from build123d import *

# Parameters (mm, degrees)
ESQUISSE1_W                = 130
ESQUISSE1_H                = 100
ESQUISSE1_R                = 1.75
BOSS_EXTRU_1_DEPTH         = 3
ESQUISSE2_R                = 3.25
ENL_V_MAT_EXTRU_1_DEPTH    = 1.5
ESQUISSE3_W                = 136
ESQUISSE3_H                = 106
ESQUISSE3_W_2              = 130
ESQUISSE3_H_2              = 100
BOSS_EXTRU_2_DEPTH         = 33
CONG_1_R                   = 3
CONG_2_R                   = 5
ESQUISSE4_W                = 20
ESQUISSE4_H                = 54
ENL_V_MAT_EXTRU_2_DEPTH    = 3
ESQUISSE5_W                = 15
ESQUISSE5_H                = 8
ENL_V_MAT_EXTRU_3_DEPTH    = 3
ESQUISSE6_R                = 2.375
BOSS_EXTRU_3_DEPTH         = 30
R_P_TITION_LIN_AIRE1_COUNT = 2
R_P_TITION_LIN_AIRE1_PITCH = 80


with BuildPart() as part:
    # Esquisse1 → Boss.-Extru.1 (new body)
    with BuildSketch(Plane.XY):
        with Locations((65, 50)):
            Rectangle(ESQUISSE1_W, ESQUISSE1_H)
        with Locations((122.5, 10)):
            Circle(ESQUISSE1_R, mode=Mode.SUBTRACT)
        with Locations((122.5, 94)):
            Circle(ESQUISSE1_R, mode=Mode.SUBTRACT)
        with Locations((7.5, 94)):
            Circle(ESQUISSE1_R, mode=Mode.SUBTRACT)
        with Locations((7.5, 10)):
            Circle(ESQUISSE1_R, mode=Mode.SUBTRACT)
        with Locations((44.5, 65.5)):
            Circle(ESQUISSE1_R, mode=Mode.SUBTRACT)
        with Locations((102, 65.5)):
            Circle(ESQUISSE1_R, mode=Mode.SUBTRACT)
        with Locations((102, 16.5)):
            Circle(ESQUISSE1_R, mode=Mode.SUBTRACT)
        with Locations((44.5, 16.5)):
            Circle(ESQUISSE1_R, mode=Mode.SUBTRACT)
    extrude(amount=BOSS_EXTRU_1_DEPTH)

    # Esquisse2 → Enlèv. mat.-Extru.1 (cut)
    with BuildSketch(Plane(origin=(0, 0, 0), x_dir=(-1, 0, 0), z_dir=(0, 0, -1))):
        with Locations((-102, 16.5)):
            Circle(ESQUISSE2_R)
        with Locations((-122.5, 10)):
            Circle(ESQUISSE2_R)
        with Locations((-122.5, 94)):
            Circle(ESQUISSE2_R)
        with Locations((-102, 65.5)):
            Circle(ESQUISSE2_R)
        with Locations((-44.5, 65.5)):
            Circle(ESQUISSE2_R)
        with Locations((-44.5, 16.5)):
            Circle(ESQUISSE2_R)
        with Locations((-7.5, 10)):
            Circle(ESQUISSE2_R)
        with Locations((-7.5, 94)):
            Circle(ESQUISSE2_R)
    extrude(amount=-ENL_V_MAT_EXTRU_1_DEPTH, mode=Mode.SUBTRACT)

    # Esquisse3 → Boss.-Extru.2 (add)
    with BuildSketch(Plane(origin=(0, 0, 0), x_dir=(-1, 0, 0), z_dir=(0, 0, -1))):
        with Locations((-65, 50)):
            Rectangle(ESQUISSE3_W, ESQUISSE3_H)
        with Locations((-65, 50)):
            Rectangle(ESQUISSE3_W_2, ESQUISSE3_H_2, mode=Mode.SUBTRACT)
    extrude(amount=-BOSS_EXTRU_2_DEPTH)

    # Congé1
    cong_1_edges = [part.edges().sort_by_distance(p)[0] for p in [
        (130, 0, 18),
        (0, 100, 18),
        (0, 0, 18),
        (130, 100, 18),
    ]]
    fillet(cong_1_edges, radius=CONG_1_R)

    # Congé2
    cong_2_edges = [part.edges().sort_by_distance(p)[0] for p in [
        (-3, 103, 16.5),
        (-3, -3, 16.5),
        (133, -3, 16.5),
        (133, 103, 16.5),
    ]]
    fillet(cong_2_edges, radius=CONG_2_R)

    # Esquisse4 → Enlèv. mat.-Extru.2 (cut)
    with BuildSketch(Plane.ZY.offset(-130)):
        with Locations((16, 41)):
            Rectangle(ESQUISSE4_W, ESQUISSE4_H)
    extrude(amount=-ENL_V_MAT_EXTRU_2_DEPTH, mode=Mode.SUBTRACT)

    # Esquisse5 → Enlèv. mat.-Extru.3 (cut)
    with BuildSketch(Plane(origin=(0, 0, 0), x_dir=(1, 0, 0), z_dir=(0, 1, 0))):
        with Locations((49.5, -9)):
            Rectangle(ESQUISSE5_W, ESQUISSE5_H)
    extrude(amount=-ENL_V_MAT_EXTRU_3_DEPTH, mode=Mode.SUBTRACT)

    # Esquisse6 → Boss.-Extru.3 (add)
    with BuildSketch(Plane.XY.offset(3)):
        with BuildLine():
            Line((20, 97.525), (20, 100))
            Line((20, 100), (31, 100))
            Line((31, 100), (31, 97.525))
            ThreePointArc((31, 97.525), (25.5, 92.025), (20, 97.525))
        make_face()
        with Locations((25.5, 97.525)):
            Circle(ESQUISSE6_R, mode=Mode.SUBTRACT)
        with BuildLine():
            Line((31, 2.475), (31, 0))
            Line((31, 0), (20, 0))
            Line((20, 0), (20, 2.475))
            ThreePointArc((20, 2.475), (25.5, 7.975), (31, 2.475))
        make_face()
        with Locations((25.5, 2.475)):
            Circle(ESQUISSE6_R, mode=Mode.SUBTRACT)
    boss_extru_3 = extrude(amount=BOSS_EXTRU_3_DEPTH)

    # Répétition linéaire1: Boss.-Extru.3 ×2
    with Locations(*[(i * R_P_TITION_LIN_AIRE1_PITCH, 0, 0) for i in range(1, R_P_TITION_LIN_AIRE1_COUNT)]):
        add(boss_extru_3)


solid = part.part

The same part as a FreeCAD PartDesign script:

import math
import FreeCAD as App
import Part
import Sketcher
from FreeCAD import Vector
Q = App.Units.Quantity


def edges_at(feature, points):
    """Names of the edges that pass closest to the given points."""
    edges = feature.Shape.Edges
    near = lambda p: min(range(len(edges)), key=lambda i: edges[i].distToShape(Part.Vertex(*p))[0])
    return sorted({f"Edge{near(p) + 1}" for p in points})

doc = App.newDocument("Part")
body = doc.addObject("PartDesign::Body", "Body")

# Sketch on XY plane
sketch1 = body.newObject("Sketcher::SketchObject", "Sketch")
sketch1.AttachmentSupport = (doc.getObject("XY_Plane"), [""])
sketch1.MapMode = "FlatFace"
sketch1.addGeometry(Part.LineSegment(Vector(0, 100, 0), Vector(0, 0, 0)), False)
sketch1.addGeometry(Part.LineSegment(Vector(0, 0, 0), Vector(130, 0, 0)), False)
sketch1.addGeometry(Part.LineSegment(Vector(130, 0, 0), Vector(130, 100, 0)), False)
sketch1.addGeometry(Part.LineSegment(Vector(130, 100, 0), Vector(0, 100, 0)), False)
sketch1.addGeometry(Part.Circle(Vector(7.5, 10, 0), Vector(0, 0, 1), 1.8), False)
sketch1.addGeometry(Part.Circle(Vector(44.5, 16.5, 0), Vector(0, 0, 1), 1.8), False)
sketch1.addGeometry(Part.Circle(Vector(102, 16.5, 0), Vector(0, 0, 1), 1.8), False)
sketch1.addGeometry(Part.Circle(Vector(122.5, 10, 0), Vector(0, 0, 1), 1.8), False)
sketch1.addGeometry(Part.Circle(Vector(44.5, 65.5, 0), Vector(0, 0, 1), 1.8), False)
sketch1.addGeometry(Part.Circle(Vector(7.5, 94, 0), Vector(0, 0, 1), 1.8), False)
sketch1.addGeometry(Part.Circle(Vector(102, 65.5, 0), Vector(0, 0, 1), 1.8), False)
sketch1.addGeometry(Part.Circle(Vector(122.5, 94, 0), Vector(0, 0, 1), 1.8), False)
sketch1.addConstraint(Sketcher.Constraint("Coincident", 0, 2, 1, 1))
sketch1.addConstraint(Sketcher.Constraint("Coincident", 1, 2, 2, 1))
sketch1.addConstraint(Sketcher.Constraint("Coincident", 2, 2, 3, 1))
sketch1.addConstraint(Sketcher.Constraint("Coincident", 3, 2, 0, 1))
sketch1.addConstraint(Sketcher.Constraint("Vertical", 0))
sketch1.addConstraint(Sketcher.Constraint("Horizontal", 1))
sketch1.addConstraint(Sketcher.Constraint("Vertical", 2))
sketch1.addConstraint(Sketcher.Constraint("Horizontal", 3))
sketch1.addConstraint(Sketcher.Constraint("Coincident", 0, 2, -1, 1))
sketch1.addConstraint(Sketcher.Constraint("Equal", 4, 5))
sketch1.addConstraint(Sketcher.Constraint("Equal", 5, 6))
sketch1.addConstraint(Sketcher.Constraint("Equal", 6, 7))
sketch1.addConstraint(Sketcher.Constraint("Equal", 7, 8))
sketch1.addConstraint(Sketcher.Constraint("Equal", 8, 9))
sketch1.addConstraint(Sketcher.Constraint("Equal", 9, 10))
sketch1.addConstraint(Sketcher.Constraint("Equal", 10, 11))
sketch1.addConstraint(Sketcher.Constraint("Horizontal", 5, 3, 6, 3))
sketch1.addConstraint(Sketcher.Constraint("Horizontal", 4, 3, 7, 3))
sketch1.addConstraint(Sketcher.Constraint("Horizontal", 8, 3, 10, 3))
sketch1.addConstraint(Sketcher.Constraint("Horizontal", 9, 3, 11, 3))
sketch1.addConstraint(Sketcher.Constraint("Vertical", 5, 3, 8, 3))
sketch1.addConstraint(Sketcher.Constraint("Vertical", 4, 3, 9, 3))
sketch1.addConstraint(Sketcher.Constraint("Vertical", 6, 3, 10, 3))
sketch1.addConstraint(Sketcher.Constraint("Vertical", 7, 3, 11, 3))
sketch1.addConstraint(Sketcher.Constraint("Diameter", 4, Q("3.5 mm")))
sketch1.addConstraint(Sketcher.Constraint("DistanceX", 1, 1, 1, 2, Q("130 mm")))
sketch1.addConstraint(Sketcher.Constraint("DistanceY", 0, 2, 0, 1, Q("100 mm")))
sketch1.addConstraint(Sketcher.Constraint("DistanceY", -1, 1, 4, 3, Q("10 mm")))
sketch1.addConstraint(Sketcher.Constraint("DistanceX", -1, 1, 6, 3, Q("102 mm")))
sketch1.addConstraint(Sketcher.Constraint("DistanceY", -1, 1, 9, 3, Q("94 mm")))
sketch1.addConstraint(Sketcher.Constraint("DistanceX", 4, 3, 5, 3, Q("37 mm")))
sketch1.addConstraint(Sketcher.Constraint("DistanceX", 5, 3, 7, 3, Q("78 mm")))
sketch1.addConstraint(Sketcher.Constraint("DistanceY", 5, 3, 8, 3, Q("49 mm")))
sketch1.addConstraint(Sketcher.Constraint("DistanceX", -1, 1, 4, 3, Q("7.5 mm")))
sketch1.addConstraint(Sketcher.Constraint("DistanceY", -1, 1, 5, 3, Q("16.5 mm")))
pad1 = body.newObject("PartDesign::Pad", "Pad")
pad1.Profile = sketch1
pad1.Length = 3

# Sketch on XY plane
sketch2 = body.newObject("Sketcher::SketchObject", "Sketch001")
sketch2.AttachmentSupport = (doc.getObject("XY_Plane"), [""])
sketch2.MapMode = "FlatFace"
sketch2.addGeometry(Part.Circle(Vector(102, 16.5, 0), Vector(0, 0, 1), 3.2), False)
sketch2.addGeometry(Part.Circle(Vector(122.5, 10, 0), Vector(0, 0, 1), 3.2), False)
sketch2.addGeometry(Part.Circle(Vector(122.5, 94, 0), Vector(0, 0, 1), 3.2), False)
sketch2.addGeometry(Part.Circle(Vector(102, 65.5, 0), Vector(0, 0, 1), 3.2), False)
sketch2.addGeometry(Part.Circle(Vector(44.5, 65.5, 0), Vector(0, 0, 1), 3.2), False)
sketch2.addGeometry(Part.Circle(Vector(44.5, 16.5, 0), Vector(0, 0, 1), 3.2), False)
sketch2.addGeometry(Part.Circle(Vector(7.5, 10, 0), Vector(0, 0, 1), 3.2), False)
sketch2.addGeometry(Part.Circle(Vector(7.5, 94, 0), Vector(0, 0, 1), 3.2), False)
sketch2.addConstraint(Sketcher.Constraint("Equal", 0, 1))
sketch2.addConstraint(Sketcher.Constraint("Equal", 1, 2))
sketch2.addConstraint(Sketcher.Constraint("Equal", 2, 3))
sketch2.addConstraint(Sketcher.Constraint("Equal", 3, 4))
sketch2.addConstraint(Sketcher.Constraint("Equal", 4, 5))
sketch2.addConstraint(Sketcher.Constraint("Equal", 5, 6))
sketch2.addConstraint(Sketcher.Constraint("Equal", 6, 7))
sketch2.addConstraint(Sketcher.Constraint("Horizontal", 3, 3, 4, 3))
sketch2.addConstraint(Sketcher.Constraint("Horizontal", 0, 3, 5, 3))
sketch2.addConstraint(Sketcher.Constraint("Horizontal", 1, 3, 6, 3))
sketch2.addConstraint(Sketcher.Constraint("Horizontal", 2, 3, 7, 3))
sketch2.addConstraint(Sketcher.Constraint("Vertical", 1, 3, 2, 3))
sketch2.addConstraint(Sketcher.Constraint("Vertical", 0, 3, 3, 3))
sketch2.addConstraint(Sketcher.Constraint("Vertical", 4, 3, 5, 3))
sketch2.addConstraint(Sketcher.Constraint("Vertical", 6, 3, 7, 3))
sketch2.addConstraint(Sketcher.Constraint("Diameter", 0, Q("6.5 mm")))
sketch2.addConstraint(Sketcher.Constraint("DistanceX", -1, 1, 0, 3, Q("102 mm")))
sketch2.addConstraint(Sketcher.Constraint("DistanceY", -1, 1, 1, 3, Q("10 mm")))
sketch2.addConstraint(Sketcher.Constraint("DistanceY", -1, 1, 2, 3, Q("94 mm")))
sketch2.addConstraint(Sketcher.Constraint("DistanceY", 0, 3, 3, 3, Q("49 mm")))
sketch2.addConstraint(Sketcher.Constraint("DistanceX", 4, 3, 2, 3, Q("78 mm")))
sketch2.addConstraint(Sketcher.Constraint("DistanceX", 6, 3, 5, 3, Q("37 mm")))
sketch2.addConstraint(Sketcher.Constraint("DistanceY", -1, 1, 0, 3, Q("16.5 mm")))
sketch2.addConstraint(Sketcher.Constraint("DistanceX", -1, 1, 1, 3, Q("122.5 mm")))
pocket1 = body.newObject("PartDesign::Pocket", "Pocket")
pocket1.Profile = sketch2
pocket1.Length = 1.5
pocket1.Reversed = True

# Sketch on XY plane
sketch3 = body.newObject("Sketcher::SketchObject", "Sketch002")
sketch3.AttachmentSupport = (doc.getObject("XY_Plane"), [""])
sketch3.MapMode = "FlatFace"
sketch3.addGeometry(Part.LineSegment(Vector(133, 103, 0), Vector(133, -3, 0)), False)
sketch3.addGeometry(Part.LineSegment(Vector(133, -3, 0), Vector(-3, -3, 0)), False)
sketch3.addGeometry(Part.LineSegment(Vector(-3, -3, 0), Vector(-3, 103, 0)), False)
sketch3.addGeometry(Part.LineSegment(Vector(-3, 103, 0), Vector(133, 103, 0)), False)
sketch3.addGeometry(Part.LineSegment(Vector(0, 0, 0), Vector(130, 0, 0)), False)
sketch3.addGeometry(Part.LineSegment(Vector(130, 0, 0), Vector(130, 100, 0)), False)
sketch3.addGeometry(Part.LineSegment(Vector(130, 100, 0), Vector(0, 100, 0)), False)
sketch3.addGeometry(Part.LineSegment(Vector(0, 100, 0), Vector(0, 0, 0)), False)
sketch3.addConstraint(Sketcher.Constraint("Coincident", 0, 2, 1, 1))
sketch3.addConstraint(Sketcher.Constraint("Coincident", 1, 2, 2, 1))
sketch3.addConstraint(Sketcher.Constraint("Coincident", 2, 2, 3, 1))
sketch3.addConstraint(Sketcher.Constraint("Coincident", 3, 2, 0, 1))
sketch3.addConstraint(Sketcher.Constraint("Coincident", 4, 2, 5, 1))
sketch3.addConstraint(Sketcher.Constraint("Coincident", 5, 2, 6, 1))
sketch3.addConstraint(Sketcher.Constraint("Coincident", 6, 2, 7, 1))
sketch3.addConstraint(Sketcher.Constraint("Coincident", 7, 2, 4, 1))
sketch3.addConstraint(Sketcher.Constraint("Vertical", 0))
sketch3.addConstraint(Sketcher.Constraint("Horizontal", 1))
sketch3.addConstraint(Sketcher.Constraint("Vertical", 2))
sketch3.addConstraint(Sketcher.Constraint("Horizontal", 3))
sketch3.addConstraint(Sketcher.Constraint("Horizontal", 4))
sketch3.addConstraint(Sketcher.Constraint("Vertical", 5))
sketch3.addConstraint(Sketcher.Constraint("Horizontal", 6))
sketch3.addConstraint(Sketcher.Constraint("Vertical", 7))
sketch3.addConstraint(Sketcher.Constraint("Coincident", 7, 2, -1, 1))
sketch3.addConstraint(Sketcher.Constraint("DistanceX", 1, 2, 1, 1, Q("136 mm")))
sketch3.addConstraint(Sketcher.Constraint("DistanceX", 4, 1, 4, 2, Q("130 mm")))
sketch3.addConstraint(Sketcher.Constraint("DistanceY", 0, 2, 0, 1, Q("106 mm")))
sketch3.addConstraint(Sketcher.Constraint("DistanceY", 5, 1, 5, 2, Q("100 mm")))
sketch3.addConstraint(Sketcher.Constraint("DistanceX", -1, 1, 0, 2, Q("133 mm")))
sketch3.addConstraint(Sketcher.Constraint("DistanceY", 0, 2, -1, 1, Q("3 mm")))
pad2 = body.newObject("PartDesign::Pad", "Pad001")
pad2.Profile = sketch3
pad2.Length = 33
doc.recompute()

fillet = body.newObject("PartDesign::Fillet", "Fillet")
fillet.Base = (pad2, edges_at(pad2, [
    (130, 0, 18),
    (0, 100, 18),
    (0, 0, 18),
    (130, 100, 18),
]))
fillet.Radius = 3
doc.recompute()

fillet2 = body.newObject("PartDesign::Fillet", "Fillet001")
fillet2.Base = (fillet, edges_at(fillet, [
    (-3, 103, 16.5),
    (-3, -3, 16.5),
    (133, -3, 16.5),
    (133, 103, 16.5),
]))
fillet2.Radius = 5

# Sketch on YZ plane
sketch4 = body.newObject("Sketcher::SketchObject", "Sketch003")
sketch4.AttachmentSupport = (doc.getObject("YZ_Plane"), [""])
sketch4.MapMode = "FlatFace"
sketch4.AttachmentOffset = App.Placement(Vector(0, 0, 130), App.Rotation())
sketch4.addGeometry(Part.LineSegment(Vector(68, 6, 0), Vector(14, 6, 0)), False)
sketch4.addGeometry(Part.LineSegment(Vector(14, 6, 0), Vector(14, 26, 0)), False)
sketch4.addGeometry(Part.LineSegment(Vector(14, 26, 0), Vector(68, 26, 0)), False)
sketch4.addGeometry(Part.LineSegment(Vector(68, 26, 0), Vector(68, 6, 0)), False)
sketch4.addConstraint(Sketcher.Constraint("Coincident", 0, 2, 1, 1))
sketch4.addConstraint(Sketcher.Constraint("Coincident", 1, 2, 2, 1))
sketch4.addConstraint(Sketcher.Constraint("Coincident", 2, 2, 3, 1))
sketch4.addConstraint(Sketcher.Constraint("Coincident", 3, 2, 0, 1))
sketch4.addConstraint(Sketcher.Constraint("Horizontal", 0))
sketch4.addConstraint(Sketcher.Constraint("Vertical", 1))
sketch4.addConstraint(Sketcher.Constraint("Horizontal", 2))
sketch4.addConstraint(Sketcher.Constraint("Vertical", 3))
sketch4.addConstraint(Sketcher.Constraint("DistanceX", 0, 2, 0, 1, Q("54 mm")))
sketch4.addConstraint(Sketcher.Constraint("DistanceY", 1, 1, 1, 2, Q("20 mm")))
sketch4.addConstraint(Sketcher.Constraint("DistanceX", -1, 1, 0, 2, Q("14 mm")))
sketch4.addConstraint(Sketcher.Constraint("DistanceY", -1, 1, 0, 2, Q("6 mm")))
pocket2 = body.newObject("PartDesign::Pocket", "Pocket001")
pocket2.Profile = sketch4
pocket2.Length = 3
pocket2.Reversed = True

# Sketch on XZ plane
sketch5 = body.newObject("Sketcher::SketchObject", "Sketch004")
sketch5.AttachmentSupport = (doc.getObject("XZ_Plane"), [""])
sketch5.MapMode = "FlatFace"
sketch5.addGeometry(Part.LineSegment(Vector(42, 5, 0), Vector(42, 13, 0)), False)
sketch5.addGeometry(Part.LineSegment(Vector(42, 13, 0), Vector(57, 13, 0)), False)
sketch5.addGeometry(Part.LineSegment(Vector(57, 13, 0), Vector(57, 5, 0)), False)
sketch5.addGeometry(Part.LineSegment(Vector(57, 5, 0), Vector(42, 5, 0)), False)
sketch5.addConstraint(Sketcher.Constraint("Coincident", 0, 2, 1, 1))
sketch5.addConstraint(Sketcher.Constraint("Coincident", 1, 2, 2, 1))
sketch5.addConstraint(Sketcher.Constraint("Coincident", 2, 2, 3, 1))
sketch5.addConstraint(Sketcher.Constraint("Coincident", 3, 2, 0, 1))
sketch5.addConstraint(Sketcher.Constraint("Vertical", 0))
sketch5.addConstraint(Sketcher.Constraint("Horizontal", 1))
sketch5.addConstraint(Sketcher.Constraint("Vertical", 2))
sketch5.addConstraint(Sketcher.Constraint("Horizontal", 3))
sketch5.addConstraint(Sketcher.Constraint("DistanceX", 1, 1, 1, 2, Q("15 mm")))
sketch5.addConstraint(Sketcher.Constraint("DistanceY", 0, 1, 0, 2, Q("8 mm")))
sketch5.addConstraint(Sketcher.Constraint("DistanceX", -1, 1, 0, 2, Q("42 mm")))
sketch5.addConstraint(Sketcher.Constraint("DistanceY", -1, 1, 0, 2, Q("13 mm")))
pocket3 = body.newObject("PartDesign::Pocket", "Pocket002")
pocket3.Profile = sketch5
pocket3.Length = 3
pocket3.Reversed = True

# Sketch on XY plane
sketch6 = body.newObject("Sketcher::SketchObject", "Sketch005")
sketch6.AttachmentSupport = (doc.getObject("XY_Plane"), [""])
sketch6.MapMode = "FlatFace"
sketch6.AttachmentOffset = App.Placement(Vector(0, 0, 3), App.Rotation())
sketch6.addGeometry(Part.LineSegment(Vector(20, 100, 0), Vector(20, 97.5, 0)), False)
sketch6.addGeometry(Part.ArcOfCircle(Part.Circle(Vector(25.5, 97.5, 0), Vector(0, 0, 1), 5.5), math.radians(180), math.radians(360)), False)
sketch6.addGeometry(Part.LineSegment(Vector(31, 97.5, 0), Vector(31, 100, 0)), False)
sketch6.addGeometry(Part.LineSegment(Vector(31, 100, 0), Vector(20, 100, 0)), False)
sketch6.addGeometry(Part.Circle(Vector(25.5, 97.5, 0), Vector(0, 0, 1), 2.4), False)
sketch6.addGeometry(Part.LineSegment(Vector(31, 0, 0), Vector(31, 2.5, 0)), False)
sketch6.addGeometry(Part.ArcOfCircle(Part.Circle(Vector(25.5, 2.5, 0), Vector(0, 0, 1), 5.5), math.radians(0), math.radians(180)), False)
sketch6.addGeometry(Part.LineSegment(Vector(20, 2.5, 0), Vector(20, 0, 0)), False)
sketch6.addGeometry(Part.LineSegment(Vector(20, 0, 0), Vector(31, 0, 0)), False)
sketch6.addGeometry(Part.Circle(Vector(25.5, 2.5, 0), Vector(0, 0, 1), 2.4), False)
sketch6.addConstraint(Sketcher.Constraint("Tangent", 0, 2, 1, 1))
sketch6.addConstraint(Sketcher.Constraint("Tangent", 1, 2, 2, 1))
sketch6.addConstraint(Sketcher.Constraint("Coincident", 2, 2, 3, 1))
sketch6.addConstraint(Sketcher.Constraint("Coincident", 3, 2, 0, 1))
sketch6.addConstraint(Sketcher.Constraint("Tangent", 5, 2, 6, 1))
sketch6.addConstraint(Sketcher.Constraint("Tangent", 6, 2, 7, 1))
sketch6.addConstraint(Sketcher.Constraint("Coincident", 7, 2, 8, 1))
sketch6.addConstraint(Sketcher.Constraint("Coincident", 8, 2, 5, 1))
sketch6.addConstraint(Sketcher.Constraint("Vertical", 0))
sketch6.addConstraint(Sketcher.Constraint("Vertical", 2))
sketch6.addConstraint(Sketcher.Constraint("Horizontal", 3))
sketch6.addConstraint(Sketcher.Constraint("Vertical", 5))
sketch6.addConstraint(Sketcher.Constraint("Vertical", 7))
sketch6.addConstraint(Sketcher.Constraint("Horizontal", 8))
sketch6.addConstraint(Sketcher.Constraint("Coincident", 4, 3, 1, 3))
sketch6.addConstraint(Sketcher.Constraint("Coincident", 9, 3, 6, 3))
sketch6.addConstraint(Sketcher.Constraint("Equal", 1, 6))
sketch6.addConstraint(Sketcher.Constraint("Equal", 4, 9))
sketch6.addConstraint(Sketcher.Constraint("PointOnObject", 7, 2, -1))
sketch6.addConstraint(Sketcher.Constraint("Vertical", 4, 3, 6, 3))
sketch6.addConstraint(Sketcher.Constraint("Equal", 2, 5))
sketch6.addConstraint(Sketcher.Constraint("Radius", 1, Q("5.5 mm")))
sketch6.addConstraint(Sketcher.Constraint("Diameter", 4, Q("4.75 mm")))
sketch6.addConstraint(Sketcher.Constraint("DistanceX", -1, 1, 0, 2, Q("20 mm")))
sketch6.addConstraint(Sketcher.Constraint("DistanceY", -1, 1, 2, 2, Q("100 mm")))
sketch6.addConstraint(Sketcher.Constraint("DistanceY", 0, 2, 0, 1, Q("2.475 mm")))
pad3 = body.newObject("PartDesign::Pad", "Pad002")
pad3.Profile = sketch6
pad3.Length = 30
doc.recompute()

linearpattern = body.newObject("PartDesign::LinearPattern", "LinearPattern")
linearpattern.Originals = [pad3]
linearpattern.Direction = (doc.getObject("X_Axis"), [""])
linearpattern.Mode = "offset"
linearpattern.Offset = 80
linearpattern.Occurrences = 2
body.Tip = linearpattern

doc.recompute()
